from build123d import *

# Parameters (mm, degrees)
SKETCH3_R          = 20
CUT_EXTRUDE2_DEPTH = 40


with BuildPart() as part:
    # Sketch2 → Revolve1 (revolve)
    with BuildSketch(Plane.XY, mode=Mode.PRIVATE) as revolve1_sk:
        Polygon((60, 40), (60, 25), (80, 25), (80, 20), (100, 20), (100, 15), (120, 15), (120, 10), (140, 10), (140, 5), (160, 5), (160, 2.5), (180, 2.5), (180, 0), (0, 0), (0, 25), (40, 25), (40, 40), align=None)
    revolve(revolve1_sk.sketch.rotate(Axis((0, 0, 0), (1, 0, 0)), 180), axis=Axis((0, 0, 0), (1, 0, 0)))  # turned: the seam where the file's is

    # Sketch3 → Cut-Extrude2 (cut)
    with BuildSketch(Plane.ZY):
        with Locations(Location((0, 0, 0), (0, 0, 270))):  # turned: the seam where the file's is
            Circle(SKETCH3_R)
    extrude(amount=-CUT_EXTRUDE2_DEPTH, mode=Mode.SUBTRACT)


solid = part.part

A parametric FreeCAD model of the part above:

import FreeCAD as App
import Part
import Sketcher

V = App.Vector

doc = App.newDocument("Part")
body = doc.addObject("PartDesign::Body", "Body")

# Sketch on XY plane
sketch1 = body.newObject("Sketcher::SketchObject", "Sketch")
sketch1.AttachmentSupport = (doc.getObject("XY_Plane"), [""])
sketch1.MapMode = "FlatFace"
sketch1.addGeometry([
    Part.LineSegment(V(60, 25, 0), V(60, 40, 0)),  # 0
    Part.LineSegment(V(60, 40, 0), V(40, 40, 0)),  # 1
    Part.LineSegment(V(40, 40, 0), V(40, 25, 0)),  # 2
    Part.LineSegment(V(40, 25, 0), V(0, 25, 0)),  # 3
    Part.LineSegment(V(0, 25, 0), V(0, 0, 0)),  # 4
    Part.LineSegment(V(0, 0, 0), V(180, 0, 0)),  # 5
    Part.LineSegment(V(180, 0, 0), V(180, 2.5, 0)),  # 6
    Part.LineSegment(V(180, 2.5, 0), V(160, 2.5, 0)),  # 7
    Part.LineSegment(V(160, 2.5, 0), V(160, 5, 0)),  # 8
    Part.LineSegment(V(160, 5, 0), V(140, 5, 0)),  # 9
    Part.LineSegment(V(140, 5, 0), V(140, 10, 0)),  # 10
    Part.LineSegment(V(140, 10, 0), V(120, 10, 0)),  # 11
    Part.LineSegment(V(120, 10, 0), V(120, 15, 0)),  # 12
    Part.LineSegment(V(120, 15, 0), V(100, 15, 0)),  # 13
    Part.LineSegment(V(100, 15, 0), V(100, 20, 0)),  # 14
    Part.LineSegment(V(100, 20, 0), V(80, 20, 0)),  # 15
    Part.LineSegment(V(80, 20, 0), V(80, 25, 0)),  # 16
    Part.LineSegment(V(80, 25, 0), V(60, 25, 0)),  # 17
], False)
sketch1.addConstraint([
    Sketcher.Constraint("Coincident", 0, 2, 1, 1),
    Sketcher.Constraint("Coincident", 1, 2, 2, 1),
    Sketcher.Constraint("Coincident", 2, 2, 3, 1),
    Sketcher.Constraint("Coincident", 3, 2, 4, 1),
    Sketcher.Constraint("Coincident", 4, 2, 5, 1),
    Sketcher.Constraint("Coincident", 5, 2, 6, 1),
    Sketcher.Constraint("Coincident", 6, 2, 7, 1),
    Sketcher.Constraint("Coincident", 7, 2, 8, 1),
    Sketcher.Constraint("Coincident", 8, 2, 9, 1),
    Sketcher.Constraint("Coincident", 9, 2, 10, 1),
    Sketcher.Constraint("Coincident", 10, 2, 11, 1),
    Sketcher.Constraint("Coincident", 11, 2, 12, 1),
    Sketcher.Constraint("Coincident", 12, 2, 13, 1),
    Sketcher.Constraint("Coincident", 13, 2, 14, 1),
    Sketcher.Constraint("Coincident", 14, 2, 15, 1),
    Sketcher.Constraint("Coincident", 15, 2, 16, 1),
    Sketcher.Constraint("Coincident", 16, 2, 17, 1),
    Sketcher.Constraint("Coincident", 17, 2, 0, 1),
    Sketcher.Constraint("Vertical", 0),
    Sketcher.Constraint("Horizontal", 1),
    Sketcher.Constraint("Vertical", 2),
    Sketcher.Constraint("Horizontal", 3),
    Sketcher.Constraint("Vertical", 4),
    Sketcher.Constraint("Horizontal", 5),
    Sketcher.Constraint("Vertical", 6),
    Sketcher.Constraint("Horizontal", 7),
    Sketcher.Constraint("Vertical", 8),
    Sketcher.Constraint("Horizontal", 9),
    Sketcher.Constraint("Vertical", 10),
    Sketcher.Constraint("Horizontal", 11),
    Sketcher.Constraint("Vertical", 12),
    Sketcher.Constraint("Horizontal", 13),
    Sketcher.Constraint("Vertical", 14),
    Sketcher.Constraint("Horizontal", 15),
    Sketcher.Constraint("Vertical", 16),
    Sketcher.Constraint("Horizontal", 17),
    Sketcher.Constraint("Coincident", 4, 2, -1, 1),
    Sketcher.Constraint("Horizontal", 3, 2, 16, 2),
    Sketcher.Constraint("Equal", 1, 7),
    Sketcher.Constraint("Equal", 7, 9),
    Sketcher.Constraint("Equal", 9, 11),
    Sketcher.Constraint("Equal", 11, 13),
    Sketcher.Constraint("Equal", 13, 15),
    Sketcher.Constraint("Equal", 15, 17),
    Sketcher.Constraint("Equal", 6, 8),
    Sketcher.Constraint("Equal", 10, 12),
    Sketcher.Constraint("Equal", 12, 14),
    Sketcher.Constraint("Equal", 14, 16),
    Sketcher.Constraint("DistanceX", 1, 2, 1, 1, 20.0),
    Sketcher.Constraint("DistanceX", 3, 2, 3, 1, 40.0),
    Sketcher.Constraint("DistanceY", 0, 1, 0, 2, 15.0),
    Sketcher.Constraint("DistanceY", 4, 2, 4, 1, 25.0),
    Sketcher.Constraint("DistanceY", 10, 1, 10, 2, 5.0),
])
revolution = body.newObject("PartDesign::Revolution", "Revolution")
revolution.Profile = sketch1
revolution.ReferenceAxis = (sketch1, ["H_Axis"])
revolution.Angle = 360

# Sketch on YZ plane
sketch2 = body.newObject("Sketcher::SketchObject", "Sketch001")
sketch2.AttachmentSupport = (doc.getObject("YZ_Plane"), [""])
sketch2.MapMode = "FlatFace"
sketch2.addGeometry(Part.Circle(V(0, 0, 0), V(0, 0, 1), 20), False)
sketch2.addConstraint([
    Sketcher.Constraint("Coincident", 0, 3, -1, 1),
    Sketcher.Constraint("Diameter", 0, 40.0),
])
pocket1 = body.newObject("PartDesign::Pocket", "Pocket")
pocket1.Profile = sketch2
pocket1.Length = 40
pocket1.Reversed = True

doc.recompute()
